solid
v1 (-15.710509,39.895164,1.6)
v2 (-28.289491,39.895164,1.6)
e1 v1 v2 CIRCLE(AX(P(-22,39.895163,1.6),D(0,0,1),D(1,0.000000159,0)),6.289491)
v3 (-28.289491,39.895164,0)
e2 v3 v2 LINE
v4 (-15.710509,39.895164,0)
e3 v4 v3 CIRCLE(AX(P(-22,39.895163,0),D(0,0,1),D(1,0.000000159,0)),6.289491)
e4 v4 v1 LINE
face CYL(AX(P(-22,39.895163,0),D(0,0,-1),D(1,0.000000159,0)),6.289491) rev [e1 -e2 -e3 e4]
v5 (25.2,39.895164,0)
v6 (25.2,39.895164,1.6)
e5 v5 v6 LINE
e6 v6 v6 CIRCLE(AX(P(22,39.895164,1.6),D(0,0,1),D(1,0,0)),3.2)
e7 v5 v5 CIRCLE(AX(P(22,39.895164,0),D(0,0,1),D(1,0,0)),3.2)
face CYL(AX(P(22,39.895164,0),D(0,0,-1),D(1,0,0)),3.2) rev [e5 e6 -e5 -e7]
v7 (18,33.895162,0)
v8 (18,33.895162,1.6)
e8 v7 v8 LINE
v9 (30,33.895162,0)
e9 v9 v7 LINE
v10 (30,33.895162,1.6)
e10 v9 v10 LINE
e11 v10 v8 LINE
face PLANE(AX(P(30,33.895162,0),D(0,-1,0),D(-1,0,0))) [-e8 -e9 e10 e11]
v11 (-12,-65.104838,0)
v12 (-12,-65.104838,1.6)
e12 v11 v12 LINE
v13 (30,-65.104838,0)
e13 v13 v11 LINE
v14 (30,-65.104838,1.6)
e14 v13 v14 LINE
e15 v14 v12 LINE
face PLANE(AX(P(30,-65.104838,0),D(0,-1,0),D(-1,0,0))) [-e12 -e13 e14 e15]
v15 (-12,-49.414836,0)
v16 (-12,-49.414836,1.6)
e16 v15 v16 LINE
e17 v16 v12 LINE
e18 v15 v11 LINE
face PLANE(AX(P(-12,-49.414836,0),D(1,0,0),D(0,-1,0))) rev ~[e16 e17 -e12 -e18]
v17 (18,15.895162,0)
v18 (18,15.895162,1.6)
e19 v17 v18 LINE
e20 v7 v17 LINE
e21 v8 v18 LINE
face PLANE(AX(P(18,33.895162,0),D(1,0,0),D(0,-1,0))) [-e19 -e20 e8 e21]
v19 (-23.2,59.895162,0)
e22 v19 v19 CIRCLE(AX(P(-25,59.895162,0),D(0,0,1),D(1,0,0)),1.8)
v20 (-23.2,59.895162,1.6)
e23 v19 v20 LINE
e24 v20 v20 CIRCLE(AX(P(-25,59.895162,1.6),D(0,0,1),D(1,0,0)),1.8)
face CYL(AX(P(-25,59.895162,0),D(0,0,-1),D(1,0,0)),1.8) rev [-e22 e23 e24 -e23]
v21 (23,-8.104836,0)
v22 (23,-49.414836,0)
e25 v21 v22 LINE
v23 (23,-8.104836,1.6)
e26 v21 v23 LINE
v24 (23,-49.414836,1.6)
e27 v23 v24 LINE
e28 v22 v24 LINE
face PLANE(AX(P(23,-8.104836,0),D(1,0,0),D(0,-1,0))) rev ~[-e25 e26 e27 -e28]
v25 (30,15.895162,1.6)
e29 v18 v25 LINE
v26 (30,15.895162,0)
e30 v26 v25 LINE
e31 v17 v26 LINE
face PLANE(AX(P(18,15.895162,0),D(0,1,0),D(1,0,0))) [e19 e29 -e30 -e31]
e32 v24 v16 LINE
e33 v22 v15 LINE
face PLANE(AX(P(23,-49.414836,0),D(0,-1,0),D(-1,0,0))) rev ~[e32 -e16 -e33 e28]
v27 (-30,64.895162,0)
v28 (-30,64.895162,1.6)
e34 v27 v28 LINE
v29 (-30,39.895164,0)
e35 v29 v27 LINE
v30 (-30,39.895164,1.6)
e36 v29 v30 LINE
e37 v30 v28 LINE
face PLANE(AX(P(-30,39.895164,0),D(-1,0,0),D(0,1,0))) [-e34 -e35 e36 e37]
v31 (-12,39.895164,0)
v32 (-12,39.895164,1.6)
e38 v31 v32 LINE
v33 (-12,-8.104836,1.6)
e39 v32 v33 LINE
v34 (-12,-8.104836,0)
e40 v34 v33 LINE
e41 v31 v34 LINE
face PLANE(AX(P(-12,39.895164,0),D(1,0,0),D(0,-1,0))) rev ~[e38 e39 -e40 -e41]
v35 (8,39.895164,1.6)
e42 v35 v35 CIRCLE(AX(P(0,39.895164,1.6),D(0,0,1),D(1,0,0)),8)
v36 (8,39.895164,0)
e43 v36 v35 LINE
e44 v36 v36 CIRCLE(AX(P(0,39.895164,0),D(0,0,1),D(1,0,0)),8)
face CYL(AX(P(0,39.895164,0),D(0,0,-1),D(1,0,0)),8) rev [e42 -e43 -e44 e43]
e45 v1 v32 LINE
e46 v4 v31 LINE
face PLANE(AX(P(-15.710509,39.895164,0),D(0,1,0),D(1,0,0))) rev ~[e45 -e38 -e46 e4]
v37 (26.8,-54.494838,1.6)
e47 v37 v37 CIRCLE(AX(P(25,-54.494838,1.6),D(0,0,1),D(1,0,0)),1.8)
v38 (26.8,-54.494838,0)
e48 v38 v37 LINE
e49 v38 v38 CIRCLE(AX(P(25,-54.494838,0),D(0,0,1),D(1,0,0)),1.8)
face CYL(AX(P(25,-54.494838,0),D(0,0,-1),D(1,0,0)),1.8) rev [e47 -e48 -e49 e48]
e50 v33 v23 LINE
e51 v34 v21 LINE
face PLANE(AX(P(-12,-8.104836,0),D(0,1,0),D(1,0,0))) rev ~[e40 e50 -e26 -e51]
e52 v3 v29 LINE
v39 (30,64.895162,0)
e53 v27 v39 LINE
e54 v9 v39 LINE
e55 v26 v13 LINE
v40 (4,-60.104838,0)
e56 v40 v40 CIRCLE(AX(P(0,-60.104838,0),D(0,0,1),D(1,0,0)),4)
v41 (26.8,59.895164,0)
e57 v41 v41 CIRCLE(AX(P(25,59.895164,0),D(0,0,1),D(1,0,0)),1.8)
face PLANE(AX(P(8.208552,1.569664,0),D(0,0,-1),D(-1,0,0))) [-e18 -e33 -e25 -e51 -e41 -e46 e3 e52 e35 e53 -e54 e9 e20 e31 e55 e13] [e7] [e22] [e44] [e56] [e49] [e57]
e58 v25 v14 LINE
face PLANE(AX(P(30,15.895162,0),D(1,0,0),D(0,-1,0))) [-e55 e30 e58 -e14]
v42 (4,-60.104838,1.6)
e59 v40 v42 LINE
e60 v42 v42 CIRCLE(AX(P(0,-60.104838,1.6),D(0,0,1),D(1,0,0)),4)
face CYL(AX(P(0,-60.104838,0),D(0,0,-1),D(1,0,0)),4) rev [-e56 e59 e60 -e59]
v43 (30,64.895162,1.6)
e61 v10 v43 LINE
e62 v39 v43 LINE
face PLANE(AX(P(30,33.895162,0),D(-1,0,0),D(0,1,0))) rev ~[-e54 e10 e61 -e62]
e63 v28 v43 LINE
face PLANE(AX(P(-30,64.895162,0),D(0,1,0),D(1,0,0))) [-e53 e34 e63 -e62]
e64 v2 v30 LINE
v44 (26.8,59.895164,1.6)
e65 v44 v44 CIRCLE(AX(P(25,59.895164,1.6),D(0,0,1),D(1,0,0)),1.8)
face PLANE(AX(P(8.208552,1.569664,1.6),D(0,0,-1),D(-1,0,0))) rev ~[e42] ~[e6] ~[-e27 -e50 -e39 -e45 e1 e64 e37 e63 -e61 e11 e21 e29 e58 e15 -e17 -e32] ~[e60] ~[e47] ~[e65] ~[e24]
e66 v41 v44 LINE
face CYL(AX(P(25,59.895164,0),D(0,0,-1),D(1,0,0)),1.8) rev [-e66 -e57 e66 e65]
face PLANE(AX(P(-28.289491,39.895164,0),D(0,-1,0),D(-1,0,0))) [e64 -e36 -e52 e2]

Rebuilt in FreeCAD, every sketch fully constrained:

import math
import FreeCAD as App
import Part
import Sketcher
from FreeCAD import Vector

doc = App.newDocument("Part")
body = doc.addObject("PartDesign::Body", "Body")

sketch1 = body.newObject("Sketcher::SketchObject", "Sketch")
sketch1.AttachmentSupport = (doc.getObject("XY_Plane"), [""])
sketch1.MapMode = "FlatFace"
sketch1.addGeometry([
    Part.ArcOfCircle(Part.Circle(Vector(-22, 39.9, 0), Vector(0, 0, 1), 6.3), math.radians(0), math.radians(180)),
    Part.LineSegment(Vector(-15.7, 39.9, 0), Vector(-12, 39.9, 0)),
    Part.LineSegment(Vector(-12, 39.9, 0), Vector(-12, -8.1, 0)),
    Part.LineSegment(Vector(-12, -8.1, 0), Vector(23, -8.1, 0)),
    Part.LineSegment(Vector(23, -8.1, 0), Vector(23, -49.4, 0)),
    Part.LineSegment(Vector(23, -49.4, 0), Vector(-12, -49.4, 0)),
    Part.LineSegment(Vector(-12, -49.4, 0), Vector(-12, -65.1, 0)),
    Part.LineSegment(Vector(-12, -65.1, 0), Vector(30, -65.1, 0)),
    Part.LineSegment(Vector(30, -65.1, 0), Vector(30, 15.9, 0)),
    Part.LineSegment(Vector(30, 15.9, 0), Vector(18, 15.9, 0)),
    Part.LineSegment(Vector(18, 15.9, 0), Vector(18, 33.9, 0)),
    Part.LineSegment(Vector(18, 33.9, 0), Vector(30, 33.9, 0)),
    Part.LineSegment(Vector(30, 33.9, 0), Vector(30, 64.9, 0)),
    Part.LineSegment(Vector(30, 64.9, 0), Vector(-30, 64.9, 0)),
    Part.LineSegment(Vector(-30, 64.9, 0), Vector(-30, 39.9, 0)),
    Part.LineSegment(Vector(-30, 39.9, 0), Vector(-28.3, 39.9, 0)),
    Part.Circle(Vector(25, -54.5, 0), Vector(0, 0, 1), 1.8),
    Part.Circle(Vector(0, -60.1, 0), Vector(0, 0, 1), 4),
    Part.Circle(Vector(22, 39.9, 0), Vector(0, 0, 1), 3.2),
    Part.Circle(Vector(25, 59.9, 0), Vector(0, 0, 1), 1.8),
    Part.Circle(Vector(0, 39.9, 0), Vector(0, 0, 1), 8),
    Part.Circle(Vector(-25, 59.9, 0), Vector(0, 0, 1), 1.8),
], False)
sketch1.addConstraint([
    Sketcher.Constraint("Coincident", 0, 1, 1, 1),
    Sketcher.Constraint("Coincident", 1, 2, 2, 1),
    Sketcher.Constraint("Coincident", 2, 2, 3, 1),
    Sketcher.Constraint("Coincident", 3, 2, 4, 1),
    Sketcher.Constraint("Coincident", 4, 2, 5, 1),
    Sketcher.Constraint("Coincident", 5, 2, 6, 1),
    Sketcher.Constraint("Coincident", 6, 2, 7, 1),
    Sketcher.Constraint("Coincident", 7, 2, 8, 1),
    Sketcher.Constraint("Coincident", 8, 2, 9, 1),
    Sketcher.Constraint("Coincident", 9, 2, 10, 1),
    Sketcher.Constraint("Coincident", 10, 2, 11, 1),
    Sketcher.Constraint("Coincident", 11, 2, 12, 1),
    Sketcher.Constraint("Coincident", 12, 2, 13, 1),
    Sketcher.Constraint("Coincident", 13, 2, 14, 1),
    Sketcher.Constraint("Coincident", 14, 2, 15, 1),
    Sketcher.Constraint("Coincident", 15, 2, 0, 2),
    Sketcher.Constraint("Horizontal", 1),
    Sketcher.Constraint("Vertical", 2),
    Sketcher.Constraint("Horizontal", 3),
    Sketcher.Constraint("Vertical", 4),
    Sketcher.Constraint("Horizontal", 5),
    Sketcher.Constraint("Vertical", 6),
    Sketcher.Constraint("Horizontal", 7),
    Sketcher.Constraint("Vertical", 8),
    Sketcher.Constraint("Horizontal", 9),
    Sketcher.Constraint("Vertical", 10),
    Sketcher.Constraint("Horizontal", 11),
    Sketcher.Constraint("Vertical", 12),
    Sketcher.Constraint("Horizontal", 13),
    Sketcher.Constraint("Vertical", 14),
    Sketcher.Constraint("Horizontal", 15),
    Sketcher.Constraint("Equal", 16, 19),
    Sketcher.Constraint("Equal", 19, 21),
    Sketcher.Constraint("Symmetric", 0, 3, 18, 3, -2),
    Sketcher.Constraint("Symmetric", 19, 3, 21, 3, -2),
    Sketcher.Constraint("PointOnObject", 17, 3, -2),
    Sketcher.Constraint("PointOnObject", 20, 3, -2),
    Sketcher.Constraint("Horizontal", 18, 3, 20, 3),
    Sketcher.Constraint("Horizontal", 20, 3, 0, 1),
    Sketcher.Constraint("Horizontal", 1, 2, 14, 2),
    Sketcher.Constraint("Vertical", 16, 3, 19, 3),
    Sketcher.Constraint("Vertical", 2, 2, 5, 2),
    Sketcher.Constraint("Vertical", 8, 2, 11, 2),
    Sketcher.Constraint("Diameter", 17, 8.0),
    Sketcher.Constraint("Diameter", 20, 16.0),
    Sketcher.Constraint("Diameter", 16, 3.6),
    Sketcher.Constraint("Diameter", 18, 6.4),
    Sketcher.Constraint("DistanceX", 3, 1, 3, 2, 35.0),
    Sketcher.Constraint("DistanceX", 7, 1, 7, 2, 42.0),
    Sketcher.Constraint("DistanceX", 9, 2, 9, 1, 12.0),
    Sketcher.Constraint("DistanceX", 13, 2, 13, 1, 60.0),
    Sketcher.Constraint("DistanceY", 2, 2, 2, 1, 48.0),
    Sketcher.Constraint("DistanceY", 8, 1, 8, 2, 81.0),
    Sketcher.Constraint("DistanceY", 10, 1, 10, 2, 18.0),
    Sketcher.Constraint("DistanceY", 12, 1, 12, 2, 31.0),
    Sketcher.Constraint("DistanceX", 0, 3, -1, 1, 22.0),
    Sketcher.Constraint("DistanceX", -1, 1, 16, 3, 25.0),
    Sketcher.Constraint("DistanceX", 1, 2, -1, 1, 12.0),
    Sketcher.Constraint("DistanceY", 17, 3, 0, 3, 100.000001),
    Sketcher.Constraint("DistanceY", 18, 3, 19, 3, 20.0),
    Sketcher.Constraint("DistanceY", 6, 2, 17, 3, 5.0),
    Sketcher.Constraint("DistanceY", 4, 2, 4, 1, 41.31),
    Sketcher.Constraint("Radius", 0, 6.289491),
    Sketcher.Constraint("DistanceY", 16, 3, 0, 3, 94.390001),
    Sketcher.Constraint("DistanceY", 6, 2, -1, 1, 65.104838),
])
pad1 = body.newObject("PartDesign::Pad", "Pad")
pad1.Profile = sketch1
pad1.Length = 1.6

doc.recompute()
